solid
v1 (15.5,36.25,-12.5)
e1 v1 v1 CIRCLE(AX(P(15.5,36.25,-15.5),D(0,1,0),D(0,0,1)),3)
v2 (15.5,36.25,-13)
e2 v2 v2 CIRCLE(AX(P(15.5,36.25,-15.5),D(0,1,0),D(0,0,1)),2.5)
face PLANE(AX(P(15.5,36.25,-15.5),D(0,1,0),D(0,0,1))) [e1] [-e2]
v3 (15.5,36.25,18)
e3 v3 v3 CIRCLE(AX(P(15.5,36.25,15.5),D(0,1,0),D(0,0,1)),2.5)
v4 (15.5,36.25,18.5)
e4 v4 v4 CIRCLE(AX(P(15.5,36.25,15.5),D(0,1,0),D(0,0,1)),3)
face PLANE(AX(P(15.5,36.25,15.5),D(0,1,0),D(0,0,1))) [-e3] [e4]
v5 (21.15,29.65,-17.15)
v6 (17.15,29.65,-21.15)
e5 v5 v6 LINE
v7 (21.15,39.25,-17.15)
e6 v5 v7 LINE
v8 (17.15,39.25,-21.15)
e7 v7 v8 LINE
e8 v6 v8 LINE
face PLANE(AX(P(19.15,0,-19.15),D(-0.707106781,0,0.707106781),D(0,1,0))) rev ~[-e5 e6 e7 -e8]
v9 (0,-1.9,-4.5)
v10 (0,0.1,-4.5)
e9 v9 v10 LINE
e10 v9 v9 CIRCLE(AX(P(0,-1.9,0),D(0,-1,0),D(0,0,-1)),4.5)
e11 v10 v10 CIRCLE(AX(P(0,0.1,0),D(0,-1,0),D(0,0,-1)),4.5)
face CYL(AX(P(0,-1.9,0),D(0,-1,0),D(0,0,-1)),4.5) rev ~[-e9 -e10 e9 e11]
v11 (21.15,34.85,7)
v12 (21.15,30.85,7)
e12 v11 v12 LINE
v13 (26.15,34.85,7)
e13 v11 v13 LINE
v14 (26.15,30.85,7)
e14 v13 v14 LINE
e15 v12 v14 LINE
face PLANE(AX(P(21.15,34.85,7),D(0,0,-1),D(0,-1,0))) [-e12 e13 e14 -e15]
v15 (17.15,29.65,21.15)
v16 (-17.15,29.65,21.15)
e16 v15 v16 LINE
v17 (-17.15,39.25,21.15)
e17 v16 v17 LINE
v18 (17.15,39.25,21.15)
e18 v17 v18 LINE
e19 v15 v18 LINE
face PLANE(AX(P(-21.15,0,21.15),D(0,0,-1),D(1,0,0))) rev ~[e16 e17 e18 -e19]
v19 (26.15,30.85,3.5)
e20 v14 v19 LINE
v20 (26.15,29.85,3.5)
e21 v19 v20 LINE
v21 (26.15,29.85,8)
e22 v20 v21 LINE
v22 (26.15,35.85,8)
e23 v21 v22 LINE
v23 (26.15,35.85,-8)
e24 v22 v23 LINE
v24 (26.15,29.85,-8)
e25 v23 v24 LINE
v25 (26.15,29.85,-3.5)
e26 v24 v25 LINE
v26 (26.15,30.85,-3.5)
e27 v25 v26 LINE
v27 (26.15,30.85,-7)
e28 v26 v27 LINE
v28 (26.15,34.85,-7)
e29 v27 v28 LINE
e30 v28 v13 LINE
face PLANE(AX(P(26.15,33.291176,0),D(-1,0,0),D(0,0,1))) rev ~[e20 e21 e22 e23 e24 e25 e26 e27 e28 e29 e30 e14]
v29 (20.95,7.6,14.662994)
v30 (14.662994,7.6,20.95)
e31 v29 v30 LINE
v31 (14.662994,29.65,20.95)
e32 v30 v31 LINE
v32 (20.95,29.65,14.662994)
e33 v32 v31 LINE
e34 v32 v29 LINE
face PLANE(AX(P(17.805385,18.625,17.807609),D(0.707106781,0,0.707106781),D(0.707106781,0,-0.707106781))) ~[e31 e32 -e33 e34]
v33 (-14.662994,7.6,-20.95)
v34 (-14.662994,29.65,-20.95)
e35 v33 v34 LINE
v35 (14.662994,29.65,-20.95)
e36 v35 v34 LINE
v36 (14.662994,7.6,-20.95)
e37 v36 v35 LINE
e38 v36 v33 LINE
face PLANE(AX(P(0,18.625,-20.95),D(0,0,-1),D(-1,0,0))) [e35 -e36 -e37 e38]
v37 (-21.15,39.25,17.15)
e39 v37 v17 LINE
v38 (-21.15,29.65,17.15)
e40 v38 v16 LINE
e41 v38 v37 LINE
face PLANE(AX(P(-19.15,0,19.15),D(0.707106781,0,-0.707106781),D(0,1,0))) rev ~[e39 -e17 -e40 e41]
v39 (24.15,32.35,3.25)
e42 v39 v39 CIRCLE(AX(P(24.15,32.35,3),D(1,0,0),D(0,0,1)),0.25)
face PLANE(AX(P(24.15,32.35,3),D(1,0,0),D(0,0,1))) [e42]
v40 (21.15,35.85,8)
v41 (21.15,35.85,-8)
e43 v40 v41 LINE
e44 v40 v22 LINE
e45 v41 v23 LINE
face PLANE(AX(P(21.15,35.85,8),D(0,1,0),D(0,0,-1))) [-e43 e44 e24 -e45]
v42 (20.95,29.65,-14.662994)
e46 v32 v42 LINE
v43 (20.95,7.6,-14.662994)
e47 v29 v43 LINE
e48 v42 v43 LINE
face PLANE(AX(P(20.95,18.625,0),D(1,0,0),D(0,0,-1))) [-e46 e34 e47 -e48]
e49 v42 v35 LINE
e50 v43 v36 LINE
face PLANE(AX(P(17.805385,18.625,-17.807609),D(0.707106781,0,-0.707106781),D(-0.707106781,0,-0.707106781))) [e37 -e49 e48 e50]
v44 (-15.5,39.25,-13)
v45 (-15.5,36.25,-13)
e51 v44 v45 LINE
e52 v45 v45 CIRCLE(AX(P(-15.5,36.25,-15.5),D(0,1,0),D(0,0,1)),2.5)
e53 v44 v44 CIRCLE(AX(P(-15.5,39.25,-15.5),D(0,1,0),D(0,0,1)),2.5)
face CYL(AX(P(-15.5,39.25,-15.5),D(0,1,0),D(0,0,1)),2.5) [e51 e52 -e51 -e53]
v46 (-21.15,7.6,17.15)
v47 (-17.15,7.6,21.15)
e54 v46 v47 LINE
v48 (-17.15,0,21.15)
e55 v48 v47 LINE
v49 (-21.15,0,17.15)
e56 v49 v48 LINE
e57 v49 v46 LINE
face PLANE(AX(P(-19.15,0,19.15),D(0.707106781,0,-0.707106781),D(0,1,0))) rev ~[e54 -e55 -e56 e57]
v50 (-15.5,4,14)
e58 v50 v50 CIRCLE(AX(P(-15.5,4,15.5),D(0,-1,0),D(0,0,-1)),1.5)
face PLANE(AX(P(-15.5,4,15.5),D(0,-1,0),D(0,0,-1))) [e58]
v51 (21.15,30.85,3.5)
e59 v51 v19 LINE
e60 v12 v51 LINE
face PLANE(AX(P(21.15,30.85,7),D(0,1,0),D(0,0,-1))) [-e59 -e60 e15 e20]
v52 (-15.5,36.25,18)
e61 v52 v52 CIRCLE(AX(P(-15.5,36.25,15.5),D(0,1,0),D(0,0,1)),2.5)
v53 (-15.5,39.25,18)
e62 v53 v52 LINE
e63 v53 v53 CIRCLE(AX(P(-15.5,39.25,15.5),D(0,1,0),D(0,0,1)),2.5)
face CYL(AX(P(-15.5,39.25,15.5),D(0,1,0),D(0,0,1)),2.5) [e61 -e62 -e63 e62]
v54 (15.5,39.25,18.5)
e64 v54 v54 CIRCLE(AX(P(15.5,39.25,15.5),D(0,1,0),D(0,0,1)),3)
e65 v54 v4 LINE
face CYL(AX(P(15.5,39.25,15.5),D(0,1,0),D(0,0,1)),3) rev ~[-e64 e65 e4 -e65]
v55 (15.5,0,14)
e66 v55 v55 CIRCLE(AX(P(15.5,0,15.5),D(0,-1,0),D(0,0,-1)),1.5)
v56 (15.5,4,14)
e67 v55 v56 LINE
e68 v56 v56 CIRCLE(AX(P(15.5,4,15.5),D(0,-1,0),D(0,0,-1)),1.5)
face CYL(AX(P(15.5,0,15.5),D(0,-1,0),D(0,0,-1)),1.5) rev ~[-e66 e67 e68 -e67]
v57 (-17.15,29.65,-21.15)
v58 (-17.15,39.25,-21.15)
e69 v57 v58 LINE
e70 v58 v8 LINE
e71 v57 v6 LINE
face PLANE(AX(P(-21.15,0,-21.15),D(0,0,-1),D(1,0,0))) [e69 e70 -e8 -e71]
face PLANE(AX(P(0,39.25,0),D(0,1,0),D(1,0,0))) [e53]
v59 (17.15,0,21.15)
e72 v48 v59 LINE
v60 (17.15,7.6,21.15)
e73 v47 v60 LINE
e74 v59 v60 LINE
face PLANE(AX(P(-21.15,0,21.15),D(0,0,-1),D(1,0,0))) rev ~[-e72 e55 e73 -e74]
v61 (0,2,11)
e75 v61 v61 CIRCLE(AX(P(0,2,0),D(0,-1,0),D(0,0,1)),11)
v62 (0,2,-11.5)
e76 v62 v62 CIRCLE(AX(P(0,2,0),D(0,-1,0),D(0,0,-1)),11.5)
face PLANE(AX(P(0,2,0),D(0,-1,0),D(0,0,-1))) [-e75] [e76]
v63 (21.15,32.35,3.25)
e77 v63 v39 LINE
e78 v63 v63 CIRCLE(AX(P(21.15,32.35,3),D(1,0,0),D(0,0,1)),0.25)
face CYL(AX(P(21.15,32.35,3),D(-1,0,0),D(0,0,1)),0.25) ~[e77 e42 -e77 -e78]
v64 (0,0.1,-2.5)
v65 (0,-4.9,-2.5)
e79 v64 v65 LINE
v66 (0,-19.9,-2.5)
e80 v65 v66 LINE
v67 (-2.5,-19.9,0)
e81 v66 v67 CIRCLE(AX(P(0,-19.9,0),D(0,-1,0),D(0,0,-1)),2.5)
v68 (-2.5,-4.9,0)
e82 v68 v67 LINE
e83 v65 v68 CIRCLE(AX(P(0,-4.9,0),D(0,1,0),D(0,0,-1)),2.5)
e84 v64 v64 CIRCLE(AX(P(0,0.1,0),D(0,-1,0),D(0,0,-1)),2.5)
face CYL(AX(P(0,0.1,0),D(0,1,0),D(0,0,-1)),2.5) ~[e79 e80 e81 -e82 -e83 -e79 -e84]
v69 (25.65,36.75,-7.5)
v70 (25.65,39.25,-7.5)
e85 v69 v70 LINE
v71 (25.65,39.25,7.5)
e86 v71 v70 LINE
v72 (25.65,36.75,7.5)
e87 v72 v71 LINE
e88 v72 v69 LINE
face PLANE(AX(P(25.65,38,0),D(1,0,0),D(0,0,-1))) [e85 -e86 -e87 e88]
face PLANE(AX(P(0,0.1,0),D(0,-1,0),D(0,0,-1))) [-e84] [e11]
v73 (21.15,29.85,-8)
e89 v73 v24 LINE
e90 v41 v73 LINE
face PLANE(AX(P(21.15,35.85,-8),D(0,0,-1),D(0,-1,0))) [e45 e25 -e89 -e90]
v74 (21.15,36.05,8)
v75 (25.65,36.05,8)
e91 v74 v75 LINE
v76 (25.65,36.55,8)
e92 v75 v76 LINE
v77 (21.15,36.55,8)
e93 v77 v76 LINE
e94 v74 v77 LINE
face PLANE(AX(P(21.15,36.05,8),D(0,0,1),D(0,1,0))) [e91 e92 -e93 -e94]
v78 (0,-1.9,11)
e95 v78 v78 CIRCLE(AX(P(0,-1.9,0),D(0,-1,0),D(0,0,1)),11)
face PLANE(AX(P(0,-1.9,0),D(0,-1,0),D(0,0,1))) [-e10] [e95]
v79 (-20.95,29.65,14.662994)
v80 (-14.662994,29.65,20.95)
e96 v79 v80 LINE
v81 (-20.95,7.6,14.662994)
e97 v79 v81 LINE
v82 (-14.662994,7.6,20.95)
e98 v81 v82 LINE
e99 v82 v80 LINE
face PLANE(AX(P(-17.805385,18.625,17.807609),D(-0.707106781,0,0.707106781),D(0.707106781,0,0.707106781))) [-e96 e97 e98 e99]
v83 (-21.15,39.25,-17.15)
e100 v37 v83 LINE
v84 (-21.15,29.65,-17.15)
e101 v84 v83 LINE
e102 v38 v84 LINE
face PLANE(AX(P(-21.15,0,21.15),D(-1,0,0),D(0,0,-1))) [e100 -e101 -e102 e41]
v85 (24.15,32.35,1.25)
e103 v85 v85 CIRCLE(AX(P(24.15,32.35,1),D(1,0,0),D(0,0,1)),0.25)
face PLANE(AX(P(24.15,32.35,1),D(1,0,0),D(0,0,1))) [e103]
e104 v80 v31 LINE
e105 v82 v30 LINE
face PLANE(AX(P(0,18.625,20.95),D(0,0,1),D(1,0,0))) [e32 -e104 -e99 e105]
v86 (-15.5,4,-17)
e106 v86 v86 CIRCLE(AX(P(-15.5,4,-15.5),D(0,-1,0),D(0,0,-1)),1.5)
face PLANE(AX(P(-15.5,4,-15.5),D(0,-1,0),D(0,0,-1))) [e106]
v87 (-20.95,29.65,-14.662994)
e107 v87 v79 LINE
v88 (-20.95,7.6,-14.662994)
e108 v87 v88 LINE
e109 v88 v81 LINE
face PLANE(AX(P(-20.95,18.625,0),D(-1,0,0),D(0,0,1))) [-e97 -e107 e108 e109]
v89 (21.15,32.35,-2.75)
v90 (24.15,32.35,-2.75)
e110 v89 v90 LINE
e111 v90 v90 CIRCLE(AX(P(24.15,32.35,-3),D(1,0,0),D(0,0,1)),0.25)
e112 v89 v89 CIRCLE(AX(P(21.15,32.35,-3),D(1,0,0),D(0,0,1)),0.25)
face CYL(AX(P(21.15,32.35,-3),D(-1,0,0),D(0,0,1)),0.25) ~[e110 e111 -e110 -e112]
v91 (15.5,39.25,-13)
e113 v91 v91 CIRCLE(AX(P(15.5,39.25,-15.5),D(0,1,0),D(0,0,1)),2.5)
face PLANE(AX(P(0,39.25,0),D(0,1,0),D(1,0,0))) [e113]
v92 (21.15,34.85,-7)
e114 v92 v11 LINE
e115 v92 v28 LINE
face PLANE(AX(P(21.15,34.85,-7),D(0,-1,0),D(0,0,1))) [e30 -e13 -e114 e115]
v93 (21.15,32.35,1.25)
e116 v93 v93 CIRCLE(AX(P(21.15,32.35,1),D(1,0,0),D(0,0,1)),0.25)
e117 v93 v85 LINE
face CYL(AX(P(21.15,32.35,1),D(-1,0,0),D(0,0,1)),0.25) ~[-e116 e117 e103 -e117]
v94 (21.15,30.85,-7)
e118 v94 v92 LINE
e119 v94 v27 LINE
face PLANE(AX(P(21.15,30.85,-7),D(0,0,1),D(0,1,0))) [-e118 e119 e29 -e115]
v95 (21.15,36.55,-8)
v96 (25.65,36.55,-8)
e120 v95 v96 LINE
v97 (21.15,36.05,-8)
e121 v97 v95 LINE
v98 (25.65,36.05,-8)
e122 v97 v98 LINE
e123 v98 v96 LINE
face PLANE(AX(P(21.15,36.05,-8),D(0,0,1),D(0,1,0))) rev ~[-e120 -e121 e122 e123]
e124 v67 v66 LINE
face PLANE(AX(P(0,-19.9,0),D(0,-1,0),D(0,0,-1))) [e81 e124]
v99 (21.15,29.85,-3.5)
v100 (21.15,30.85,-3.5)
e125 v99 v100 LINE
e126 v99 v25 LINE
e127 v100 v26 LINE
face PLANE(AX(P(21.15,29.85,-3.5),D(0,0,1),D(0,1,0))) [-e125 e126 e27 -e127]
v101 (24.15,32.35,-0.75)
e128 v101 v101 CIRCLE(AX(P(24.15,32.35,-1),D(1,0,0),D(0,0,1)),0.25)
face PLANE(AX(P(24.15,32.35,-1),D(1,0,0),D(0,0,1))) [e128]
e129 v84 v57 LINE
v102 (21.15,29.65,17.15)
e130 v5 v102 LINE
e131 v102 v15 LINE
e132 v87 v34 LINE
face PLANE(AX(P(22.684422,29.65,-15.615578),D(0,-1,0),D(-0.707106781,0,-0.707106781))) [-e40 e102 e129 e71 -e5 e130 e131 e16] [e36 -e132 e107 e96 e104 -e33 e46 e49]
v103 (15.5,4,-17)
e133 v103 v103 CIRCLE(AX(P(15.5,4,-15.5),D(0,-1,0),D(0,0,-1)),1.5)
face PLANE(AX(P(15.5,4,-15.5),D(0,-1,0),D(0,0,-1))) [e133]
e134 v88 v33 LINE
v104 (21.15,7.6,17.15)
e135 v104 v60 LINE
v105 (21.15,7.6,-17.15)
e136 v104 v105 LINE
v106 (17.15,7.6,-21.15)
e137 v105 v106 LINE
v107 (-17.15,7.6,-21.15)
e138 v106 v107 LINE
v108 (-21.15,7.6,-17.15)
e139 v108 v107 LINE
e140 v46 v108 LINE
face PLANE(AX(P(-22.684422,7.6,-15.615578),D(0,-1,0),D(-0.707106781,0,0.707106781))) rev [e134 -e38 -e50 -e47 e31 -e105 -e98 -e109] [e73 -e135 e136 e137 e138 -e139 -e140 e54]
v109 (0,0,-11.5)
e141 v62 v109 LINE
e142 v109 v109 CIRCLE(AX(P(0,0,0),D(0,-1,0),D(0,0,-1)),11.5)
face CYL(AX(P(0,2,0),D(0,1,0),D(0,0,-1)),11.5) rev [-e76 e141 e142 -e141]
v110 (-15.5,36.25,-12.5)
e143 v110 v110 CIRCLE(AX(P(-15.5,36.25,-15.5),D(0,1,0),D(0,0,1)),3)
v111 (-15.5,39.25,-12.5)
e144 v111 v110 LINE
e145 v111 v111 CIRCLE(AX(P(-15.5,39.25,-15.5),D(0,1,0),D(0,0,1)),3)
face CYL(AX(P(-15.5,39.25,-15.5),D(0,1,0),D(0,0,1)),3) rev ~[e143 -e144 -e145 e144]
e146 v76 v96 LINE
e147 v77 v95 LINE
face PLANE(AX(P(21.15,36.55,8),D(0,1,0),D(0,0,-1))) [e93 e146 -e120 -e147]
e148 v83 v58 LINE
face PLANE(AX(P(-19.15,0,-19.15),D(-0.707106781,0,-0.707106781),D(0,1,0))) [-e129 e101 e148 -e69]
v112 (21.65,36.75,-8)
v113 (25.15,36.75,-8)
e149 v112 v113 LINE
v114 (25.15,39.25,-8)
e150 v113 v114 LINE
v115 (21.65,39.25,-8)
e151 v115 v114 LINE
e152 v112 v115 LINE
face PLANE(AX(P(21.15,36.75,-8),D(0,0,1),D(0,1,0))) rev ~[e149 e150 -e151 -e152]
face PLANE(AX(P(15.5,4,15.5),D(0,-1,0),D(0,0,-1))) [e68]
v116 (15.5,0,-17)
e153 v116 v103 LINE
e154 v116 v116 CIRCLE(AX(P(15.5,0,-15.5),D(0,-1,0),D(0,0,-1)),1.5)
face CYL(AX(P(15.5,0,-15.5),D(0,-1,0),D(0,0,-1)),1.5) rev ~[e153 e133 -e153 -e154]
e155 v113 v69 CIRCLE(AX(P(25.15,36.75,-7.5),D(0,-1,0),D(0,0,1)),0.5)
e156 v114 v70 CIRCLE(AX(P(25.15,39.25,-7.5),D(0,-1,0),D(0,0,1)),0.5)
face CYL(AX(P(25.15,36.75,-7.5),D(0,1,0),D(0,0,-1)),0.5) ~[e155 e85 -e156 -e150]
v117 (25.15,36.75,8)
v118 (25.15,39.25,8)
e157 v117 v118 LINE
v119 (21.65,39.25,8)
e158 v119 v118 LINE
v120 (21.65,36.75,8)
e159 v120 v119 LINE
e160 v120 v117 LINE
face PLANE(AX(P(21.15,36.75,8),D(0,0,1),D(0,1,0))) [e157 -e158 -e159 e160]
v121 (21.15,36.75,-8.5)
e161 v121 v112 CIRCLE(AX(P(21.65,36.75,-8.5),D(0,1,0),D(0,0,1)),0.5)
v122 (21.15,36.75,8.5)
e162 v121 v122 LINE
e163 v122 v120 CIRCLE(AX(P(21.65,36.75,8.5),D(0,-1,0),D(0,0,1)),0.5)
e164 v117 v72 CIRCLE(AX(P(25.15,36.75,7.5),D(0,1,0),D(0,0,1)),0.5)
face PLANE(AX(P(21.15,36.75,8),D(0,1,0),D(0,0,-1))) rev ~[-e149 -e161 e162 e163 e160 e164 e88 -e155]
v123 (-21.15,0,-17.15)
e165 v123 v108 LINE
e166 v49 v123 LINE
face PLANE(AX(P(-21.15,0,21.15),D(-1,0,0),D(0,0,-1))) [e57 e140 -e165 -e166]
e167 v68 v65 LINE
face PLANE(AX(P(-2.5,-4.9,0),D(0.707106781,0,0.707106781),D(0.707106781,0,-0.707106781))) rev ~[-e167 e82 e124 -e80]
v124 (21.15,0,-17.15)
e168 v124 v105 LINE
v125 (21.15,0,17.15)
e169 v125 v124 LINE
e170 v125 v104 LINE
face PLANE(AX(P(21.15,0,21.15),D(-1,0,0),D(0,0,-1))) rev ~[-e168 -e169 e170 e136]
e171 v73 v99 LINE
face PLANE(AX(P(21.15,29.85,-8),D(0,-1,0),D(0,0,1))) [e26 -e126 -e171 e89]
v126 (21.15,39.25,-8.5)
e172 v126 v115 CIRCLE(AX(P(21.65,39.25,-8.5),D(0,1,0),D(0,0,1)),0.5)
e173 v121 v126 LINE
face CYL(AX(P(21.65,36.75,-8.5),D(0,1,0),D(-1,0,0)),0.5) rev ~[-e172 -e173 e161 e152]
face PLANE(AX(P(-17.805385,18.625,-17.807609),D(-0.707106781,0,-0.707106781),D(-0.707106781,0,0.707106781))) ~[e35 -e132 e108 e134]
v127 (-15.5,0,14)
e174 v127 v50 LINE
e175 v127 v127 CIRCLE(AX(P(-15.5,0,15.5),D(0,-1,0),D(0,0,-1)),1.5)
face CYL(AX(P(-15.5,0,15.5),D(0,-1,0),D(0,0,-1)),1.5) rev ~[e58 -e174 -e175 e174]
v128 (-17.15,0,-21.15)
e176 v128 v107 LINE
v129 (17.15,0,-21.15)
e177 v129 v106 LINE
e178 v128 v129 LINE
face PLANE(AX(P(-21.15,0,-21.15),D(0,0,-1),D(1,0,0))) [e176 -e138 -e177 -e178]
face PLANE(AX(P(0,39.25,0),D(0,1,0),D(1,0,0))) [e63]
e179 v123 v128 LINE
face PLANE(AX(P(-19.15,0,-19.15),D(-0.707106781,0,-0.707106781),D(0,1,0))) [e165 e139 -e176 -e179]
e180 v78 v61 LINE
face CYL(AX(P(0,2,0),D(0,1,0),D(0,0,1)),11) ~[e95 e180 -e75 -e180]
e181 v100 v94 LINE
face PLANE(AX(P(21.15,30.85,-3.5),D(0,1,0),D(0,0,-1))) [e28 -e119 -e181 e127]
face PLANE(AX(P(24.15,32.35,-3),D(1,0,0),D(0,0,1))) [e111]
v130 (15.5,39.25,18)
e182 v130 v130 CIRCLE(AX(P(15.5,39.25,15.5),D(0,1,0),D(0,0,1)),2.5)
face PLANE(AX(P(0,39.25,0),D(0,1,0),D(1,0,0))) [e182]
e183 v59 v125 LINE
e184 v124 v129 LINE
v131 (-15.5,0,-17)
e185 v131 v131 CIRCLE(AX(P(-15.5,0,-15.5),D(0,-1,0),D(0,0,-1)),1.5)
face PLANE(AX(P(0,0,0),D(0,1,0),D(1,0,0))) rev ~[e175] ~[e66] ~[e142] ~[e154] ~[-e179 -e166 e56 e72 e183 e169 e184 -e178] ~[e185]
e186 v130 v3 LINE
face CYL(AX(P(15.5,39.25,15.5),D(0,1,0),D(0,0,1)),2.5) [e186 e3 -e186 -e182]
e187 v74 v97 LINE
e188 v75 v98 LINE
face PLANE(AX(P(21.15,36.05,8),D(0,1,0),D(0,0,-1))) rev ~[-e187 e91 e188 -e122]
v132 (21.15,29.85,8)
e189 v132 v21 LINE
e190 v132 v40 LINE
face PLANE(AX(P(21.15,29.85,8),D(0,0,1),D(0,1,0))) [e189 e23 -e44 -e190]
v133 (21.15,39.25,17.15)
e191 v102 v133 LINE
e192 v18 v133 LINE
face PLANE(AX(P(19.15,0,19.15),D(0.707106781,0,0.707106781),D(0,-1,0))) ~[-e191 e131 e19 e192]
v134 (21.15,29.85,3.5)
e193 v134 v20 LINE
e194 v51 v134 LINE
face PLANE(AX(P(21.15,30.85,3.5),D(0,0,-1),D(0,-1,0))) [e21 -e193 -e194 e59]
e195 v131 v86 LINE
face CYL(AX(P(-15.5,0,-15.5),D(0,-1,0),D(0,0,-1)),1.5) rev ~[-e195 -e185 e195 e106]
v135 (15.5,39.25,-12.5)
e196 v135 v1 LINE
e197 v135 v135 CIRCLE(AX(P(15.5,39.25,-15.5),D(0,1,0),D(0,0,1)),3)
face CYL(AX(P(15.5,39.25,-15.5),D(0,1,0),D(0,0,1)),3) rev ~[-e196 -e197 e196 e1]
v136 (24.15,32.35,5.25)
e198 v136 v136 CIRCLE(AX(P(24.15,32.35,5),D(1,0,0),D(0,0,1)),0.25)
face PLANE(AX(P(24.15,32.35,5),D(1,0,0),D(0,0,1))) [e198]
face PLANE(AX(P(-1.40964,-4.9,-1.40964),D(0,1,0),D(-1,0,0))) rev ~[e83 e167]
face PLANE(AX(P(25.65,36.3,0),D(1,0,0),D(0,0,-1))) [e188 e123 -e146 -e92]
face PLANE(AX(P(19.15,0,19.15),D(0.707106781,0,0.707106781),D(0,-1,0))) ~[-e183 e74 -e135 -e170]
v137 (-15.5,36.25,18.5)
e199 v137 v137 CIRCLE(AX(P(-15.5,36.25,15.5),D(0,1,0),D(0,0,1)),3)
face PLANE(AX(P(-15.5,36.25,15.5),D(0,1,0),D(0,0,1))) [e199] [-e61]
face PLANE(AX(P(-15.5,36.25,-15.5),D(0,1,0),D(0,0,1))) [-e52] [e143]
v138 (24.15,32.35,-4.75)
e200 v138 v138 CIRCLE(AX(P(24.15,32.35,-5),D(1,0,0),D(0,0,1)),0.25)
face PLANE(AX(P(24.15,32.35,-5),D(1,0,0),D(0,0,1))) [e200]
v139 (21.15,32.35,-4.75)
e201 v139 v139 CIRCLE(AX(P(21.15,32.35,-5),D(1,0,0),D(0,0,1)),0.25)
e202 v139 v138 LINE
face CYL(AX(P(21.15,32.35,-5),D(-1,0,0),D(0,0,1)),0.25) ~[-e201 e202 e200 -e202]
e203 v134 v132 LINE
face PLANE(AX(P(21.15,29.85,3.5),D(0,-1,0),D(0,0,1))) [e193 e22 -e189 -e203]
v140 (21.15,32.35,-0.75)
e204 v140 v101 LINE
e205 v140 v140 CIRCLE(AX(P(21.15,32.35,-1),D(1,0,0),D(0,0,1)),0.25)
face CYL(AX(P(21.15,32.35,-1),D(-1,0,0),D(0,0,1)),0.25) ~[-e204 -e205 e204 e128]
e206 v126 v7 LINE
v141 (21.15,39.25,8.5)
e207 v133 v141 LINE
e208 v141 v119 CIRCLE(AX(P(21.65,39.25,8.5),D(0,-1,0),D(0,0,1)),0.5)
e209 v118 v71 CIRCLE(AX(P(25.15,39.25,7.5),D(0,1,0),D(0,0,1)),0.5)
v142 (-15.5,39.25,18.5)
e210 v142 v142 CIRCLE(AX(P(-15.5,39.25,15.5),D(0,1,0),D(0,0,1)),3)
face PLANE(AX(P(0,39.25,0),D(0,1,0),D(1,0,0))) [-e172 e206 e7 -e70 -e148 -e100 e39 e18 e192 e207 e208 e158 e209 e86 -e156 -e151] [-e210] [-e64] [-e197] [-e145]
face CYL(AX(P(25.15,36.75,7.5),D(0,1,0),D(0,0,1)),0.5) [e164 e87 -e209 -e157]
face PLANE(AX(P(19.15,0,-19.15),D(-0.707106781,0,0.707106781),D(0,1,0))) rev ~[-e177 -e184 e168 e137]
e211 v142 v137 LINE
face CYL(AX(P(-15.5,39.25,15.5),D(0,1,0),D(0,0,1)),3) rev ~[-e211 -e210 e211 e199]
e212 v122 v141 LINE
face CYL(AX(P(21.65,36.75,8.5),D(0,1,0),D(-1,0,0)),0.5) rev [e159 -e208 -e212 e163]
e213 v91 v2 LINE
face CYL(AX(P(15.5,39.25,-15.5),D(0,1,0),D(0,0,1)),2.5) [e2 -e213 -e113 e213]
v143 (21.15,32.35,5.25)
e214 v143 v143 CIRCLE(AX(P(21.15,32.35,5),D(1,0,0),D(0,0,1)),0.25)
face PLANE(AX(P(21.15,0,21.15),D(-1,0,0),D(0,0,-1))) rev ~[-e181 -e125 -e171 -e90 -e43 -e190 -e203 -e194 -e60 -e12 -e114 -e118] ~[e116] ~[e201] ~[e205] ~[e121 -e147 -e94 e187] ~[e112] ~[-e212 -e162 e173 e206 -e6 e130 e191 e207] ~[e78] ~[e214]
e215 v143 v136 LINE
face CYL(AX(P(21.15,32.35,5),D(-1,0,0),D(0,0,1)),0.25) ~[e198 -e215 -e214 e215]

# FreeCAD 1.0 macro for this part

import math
import FreeCAD as App
import Part
import Sketcher
from FreeCAD import Vector
Q = App.Units.Quantity


def edges_at(feature, points):
    """Names of the edges that pass closest to the given points."""
    edges = feature.Shape.Edges
    near = lambda p: min(range(len(edges)), key=lambda i: edges[i].distToShape(Part.Vertex(*p))[0])
    return sorted({f"Edge{near(p) + 1}" for p in points})


def add_polygon(sketch, points):
    """Adds a closed chain of lines whose ends are joined by coincident constraints."""
    first, n = sketch.GeometryCount, len(points)
    for a, b in zip(points, points[1:] + points[:1]):
        sketch.addGeometry(Part.LineSegment(App.Vector(*a, 0), App.Vector(*b, 0)), False)
    for i in range(n):
        sketch.addConstraint(Sketcher.Constraint("Coincident", first + i, 2, first + (i + 1) % n, 1))

doc = App.newDocument("Part")
body = doc.addObject("PartDesign::Body", "Body")

sketch1 = doc.addObject("Sketcher::SketchObject", "Sketch")
body.addObject(sketch1)
sketch1.AttachmentSupport = (doc.XZ_Plane, [""])
sketch1.MapMode = "FlatFace"
add_polygon(sketch1, [(-21, -21), (-21, 21), (21, 21), (21, -21)])
sketch1.addConstraint(Sketcher.Constraint("Vertical", 0))
sketch1.addConstraint(Sketcher.Constraint("Horizontal", 1))
sketch1.addConstraint(Sketcher.Constraint("Vertical", 2))
sketch1.addConstraint(Sketcher.Constraint("Horizontal", 3))
sketch1.addConstraint(Sketcher.Constraint("Symmetric", 0, 2, 2, 2, -1, 1))
sketch1.addConstraint(Sketcher.Constraint("Equal", 3, 0))
sketch1.addConstraint(Sketcher.Constraint("DistanceX", 1, 1, 1, 2, Q("42.3 mm")))
pad1 = doc.addObject("PartDesign::Pad", "Pad")
body.addObject(pad1)
pad1.Profile = sketch1
pad1.Length = 39.25
pad1.Reversed = True
doc.recompute()

chamfer = doc.addObject("PartDesign::Chamfer", "Chamfer")
body.addObject(chamfer)
chamfer.Base = (pad1, edges_at(pad1, [
    (21.15, 19.625, 21.15),
    (-21.15, 19.625, 21.15),
    (-21.15, 19.625, -21.15),
    (21.15, 19.625, -21.15),
]))
chamfer.Size = 4

sketch2 = doc.addObject("Sketcher::SketchObject", "Sketch001")
body.addObject(sketch2)
sketch2.Placement = App.Placement(Vector(19.15, 0, -19.15), App.Rotation(Vector(-0.707106781, 0, -0.707106781), Vector(0, 0.999999999, 0), Vector(0.707106781, 0, -0.707106781), "ZXY"))
add_polygon(sketch2, [(-5, 30), (-5, 8), (5, 8), (5, 30)])
sketch2.addConstraint(Sketcher.Constraint("Vertical", 0))
sketch2.addConstraint(Sketcher.Constraint("Horizontal", 1))
sketch2.addConstraint(Sketcher.Constraint("Vertical", 2))
sketch2.addConstraint(Sketcher.Constraint("Horizontal", 3))
sketch2.addConstraint(Sketcher.Constraint("DistanceX", 1, 1, 1, 2, Q("10 mm")))
sketch2.addConstraint(Sketcher.Constraint("DistanceY", 0, 2, 0, 1, Q("22.05 mm")))
sketch2.addConstraint(Sketcher.Constraint("DistanceY", -1, 1, 0, 2, Q("7.6 mm")))
sketch2.addConstraint(Sketcher.Constraint("DistanceX", 0, 2, -1, 1, Q("4.998427 mm")))
pocket1 = doc.addObject("PartDesign::Pocket", "Pocket")
body.addObject(pocket1)
pocket1.Profile = sketch2
pocket1.Length = 1.9
doc.recompute()

mirrored = doc.addObject("PartDesign::Mirrored", "Mirrored")
body.addObject(mirrored)
mirrored.Originals = [pocket1]
mirrored.MirrorPlane = (doc.XY_Plane, [""])
body.Tip = mirrored
doc.recompute()

mirrored2 = doc.addObject("PartDesign::Mirrored", "Mirrored001")
body.addObject(mirrored2)
mirrored2.Originals = [pocket1]
mirrored2.MirrorPlane = (doc.YZ_Plane, [""])
body.Tip = mirrored2

sketch3 = doc.addObject("Sketcher::SketchObject", "Sketch002")
body.addObject(sketch3)
sketch3.Placement = App.Placement(Vector(-19.15, 0, 19.15), App.Rotation(Vector(0.707106781, 0, 0.707106781), Vector(0, 0.999999999, 0), Vector(-0.707106781, 0, 0.707106781), "ZXY"))
add_polygon(sketch3, [(-5, 30), (-5, 8), (5, 8), (5, 30)])
sketch3.addConstraint(Sketcher.Constraint("Vertical", 0))
sketch3.addConstraint(Sketcher.Constraint("Horizontal", 1))
sketch3.addConstraint(Sketcher.Constraint("Vertical", 2))
sketch3.addConstraint(Sketcher.Constraint("Horizontal", 3))
sketch3.addConstraint(Sketcher.Constraint("DistanceX", 1, 1, 1, 2, Q("10 mm")))
sketch3.addConstraint(Sketcher.Constraint("DistanceY", 0, 2, 0, 1, Q("22.05 mm")))
sketch3.addConstraint(Sketcher.Constraint("DistanceY", -1, 1, 0, 2, Q("7.6 mm")))
sketch3.addConstraint(Sketcher.Constraint("DistanceX", 0, 2, -1, 1, Q("4.998427 mm")))
pocket2 = doc.addObject("PartDesign::Pocket", "Pocket001")
body.addObject(pocket2)
pocket2.Profile = sketch3
pocket2.Length = 1.9

sketch4 = doc.addObject("Sketcher::SketchObject", "Sketch003")
body.addObject(sketch4)
sketch4.AttachmentSupport = (doc.XZ_Plane, [""])
sketch4.MapMode = "FlatFace"
sketch4.addGeometry(Part.Circle(Vector(0, 0, 0), Vector(0, 0, 1), 11), False)
sketch4.addConstraint(Sketcher.Constraint("Coincident", 0, 3, -1, 1))
sketch4.addConstraint(Sketcher.Constraint("Diameter", 0, Q("22 mm")))
pad2 = doc.addObject("PartDesign::Pad", "Pad001")
body.addObject(pad2)
pad2.Profile = sketch4
pad2.Length = 1.9

sketch5 = doc.addObject("Sketcher::SketchObject", "Sketch004")
body.addObject(sketch5)
sketch5.AttachmentSupport = (doc.XZ_Plane, [""])
sketch5.MapMode = "FlatFace"
sketch5.AttachmentOffset = App.Placement(Vector(0, 0, -2), App.Rotation())
sketch5.addGeometry(Part.Circle(Vector(0, 0, 0), Vector(0, 0, 1), 12), False)
sketch5.addGeometry(Part.Circle(Vector(0, 0, 0), Vector(0, 0, 1), 11), False)
sketch5.addConstraint(Sketcher.Constraint("Coincident", 0, 3, -1, 1))
sketch5.addConstraint(Sketcher.Constraint("Coincident", 1, 3, -1, 1))
sketch5.addConstraint(Sketcher.Constraint("Diameter", 0, Q("23 mm")))
sketch5.addConstraint(Sketcher.Constraint("Diameter", 1, Q("22 mm")))
pocket3 = doc.addObject("PartDesign::Pocket", "Pocket002")
body.addObject(pocket3)
pocket3.Profile = sketch5
pocket3.Length = 2
pocket3.Reversed = True

sketch6 = doc.addObject("Sketcher::SketchObject", "Sketch005")
body.addObject(sketch6)
sketch6.AttachmentSupport = (doc.XZ_Plane, [""])
sketch6.MapMode = "FlatFace"
sketch6.AttachmentOffset = App.Placement(Vector(0, 0, 1.9), App.Rotation())
sketch6.addGeometry(Part.Circle(Vector(0, 0, 0), Vector(0, 0, 1), 4.5), False)
sketch6.addConstraint(Sketcher.Constraint("Coincident", 0, 3, -1, 1))
sketch6.addConstraint(Sketcher.Constraint("Diameter", 0, Q("9 mm")))
pocket4 = doc.addObject("PartDesign::Pocket", "Pocket003")
body.addObject(pocket4)
pocket4.Profile = sketch6
pocket4.Length = 2

sketch7 = doc.addObject("Sketcher::SketchObject", "Sketch006")
body.addObject(sketch7)
sketch7.AttachmentSupport = (doc.XZ_Plane, [""])
sketch7.MapMode = "FlatFace"
sketch7.AttachmentOffset = App.Placement(Vector(0, 0, -0.1), App.Rotation())
sketch7.addGeometry(Part.Circle(Vector(0, 0, 0), Vector(0, 0, 1), 2.5), False)
sketch7.addConstraint(Sketcher.Constraint("Coincident", 0, 3, -1, 1))
sketch7.addConstraint(Sketcher.Constraint("Diameter", 0, Q("5 mm")))
pad3 = doc.addObject("PartDesign::Pad", "Pad002")
body.addObject(pad3)
pad3.Profile = sketch7
pad3.Length = 20

sketch8 = doc.addObject("Sketcher::SketchObject", "Sketch007")
body.addObject(sketch8)
sketch8.AttachmentSupport = (doc.XZ_Plane, [""])
sketch8.MapMode = "FlatFace"
sketch8.AttachmentOffset = App.Placement(Vector(0, 0, 4.9), App.Rotation())
sketch8.addGeometry(Part.LineSegment(Vector(0, -2.5, 0), Vector(-2.5, 0, 0)), False)
sketch8.addGeometry(Part.ArcOfCircle(Part.Circle(Vector(0, 0, 0), Vector(0, 0, 1), 2.5), math.radians(180), math.radians(270)), False)
sketch8.addConstraint(Sketcher.Constraint("Coincident", 0, 1, 1, 2))
sketch8.addConstraint(Sketcher.Constraint("Coincident", 1, 1, 0, 2))
sketch8.addConstraint(Sketcher.Constraint("Coincident", 1, 3, -1, 1))
sketch8.addConstraint(Sketcher.Constraint("PointOnObject", 0, 1, -2))
sketch8.addConstraint(Sketcher.Constraint("PointOnObject", 1, 1, -1))
sketch8.addConstraint(Sketcher.Constraint("Radius", 1, Q("2.5 mm")))
pocket5 = doc.addObject("PartDesign::Pocket", "Pocket004")
body.addObject(pocket5)
pocket5.Profile = sketch8
pocket5.Length = 15
pocket5.Reversed = True

sketch9 = doc.addObject("Sketcher::SketchObject", "Sketch008")
body.addObject(sketch9)
sketch9.AttachmentSupport = (doc.XZ_Plane, [""])
sketch9.MapMode = "FlatFace"
sketch9.addGeometry(Part.Circle(Vector(-15.5, 15.5, 0), Vector(0, 0, 1), 1.5), False)
sketch9.addGeometry(Part.Circle(Vector(15.5, 15.5, 0), Vector(0, 0, 1), 1.5), False)
sketch9.addGeometry(Part.Circle(Vector(15.5, -15.5, 0), Vector(0, 0, 1), 1.5), False)
sketch9.addGeometry(Part.Circle(Vector(-15.5, -15.5, 0), Vector(0, 0, 1), 1.5), False)
sketch9.addConstraint(Sketcher.Constraint("Equal", 0, 1))
sketch9.addConstraint(Sketcher.Constraint("Equal", 1, 2))
sketch9.addConstraint(Sketcher.Constraint("Equal", 2, 3))
sketch9.addConstraint(Sketcher.Constraint("Symmetric", 0, 3, 2, 3, -1, 1))
sketch9.addConstraint(Sketcher.Constraint("Symmetric", 1, 3, 3, 3, -1, 1))
sketch9.addConstraint(Sketcher.Constraint("Symmetric", 0, 3, 1, 3, -2))
sketch9.addConstraint(Sketcher.Constraint("Diameter", 0, Q("3 mm")))
sketch9.addConstraint(Sketcher.Constraint("DistanceX", 0, 3, 1, 3, Q("31 mm")))
sketch9.addConstraint(Sketcher.Constraint("DistanceY", 2, 3, 1, 3, Q("31 mm")))
pocket6 = doc.addObject("PartDesign::Pocket", "Pocket005")
body.addObject(pocket6)
pocket6.Profile = sketch9
pocket6.Length = 4

sketch10 = doc.addObject("Sketcher::SketchObject", "Sketch009")
body.addObject(sketch10)
sketch10.AttachmentSupport = (doc.YZ_Plane, [""])
sketch10.MapMode = "FlatFace"
sketch10.AttachmentOffset = App.Placement(Vector(0, 0, -21.15), App.Rotation())
add_polygon(sketch10, [(30, -15), (8, -15), (8, 15), (30, 15)])
sketch10.addConstraint(Sketcher.Constraint("Horizontal", 0))
sketch10.addConstraint(Sketcher.Constraint("Vertical", 1))
sketch10.addConstraint(Sketcher.Constraint("Horizontal", 2))
sketch10.addConstraint(Sketcher.Constraint("Vertical", 3))
sketch10.addConstraint(Sketcher.Constraint("DistanceX", 0, 2, 0, 1, Q("22.05 mm")))
sketch10.addConstraint(Sketcher.Constraint("DistanceX", -1, 1, 0, 2, Q("7.6 mm")))
sketch10.addConstraint(Sketcher.Constraint("DistanceY", 1, 1, 1, 2, Q("30.925988 mm")))
sketch10.addConstraint(Sketcher.Constraint("DistanceY", 0, 2, -1, 1, Q("15.462994 mm")))
pocket7 = doc.addObject("PartDesign::Pocket", "Pocket006")
body.addObject(pocket7)
pocket7.Profile = sketch10
pocket7.Length = 0.2
pocket7.Reversed = True
doc.recompute()

polarpattern = doc.addObject("PartDesign::PolarPattern", "PolarPattern")
body.addObject(polarpattern)
polarpattern.Originals = [pocket7]
polarpattern.Axis = (doc.Y_Axis, [""])
polarpattern.Angle = 360
polarpattern.Occurrences = 4
body.Tip = polarpattern

sketch11 = doc.addObject("Sketcher::SketchObject", "Sketch010")
body.addObject(sketch11)
sketch11.AttachmentSupport = (doc.YZ_Plane, [""])
sketch11.MapMode = "FlatFace"
sketch11.AttachmentOffset = App.Placement(Vector(0, 0, 21.15), App.Rotation())
add_polygon(sketch11, [(39.2, 8), (36.8, 8), (36.8, -8), (39.2, -8)])
sketch11.addConstraint(Sketcher.Constraint("Horizontal", 0))
sketch11.addConstraint(Sketcher.Constraint("Vertical", 1))
sketch11.addConstraint(Sketcher.Constraint("Horizontal", 2))
sketch11.addConstraint(Sketcher.Constraint("Vertical", 3))
sketch11.addConstraint(Sketcher.Constraint("DistanceY", 1, 2, 1, 1, Q("16 mm")))
sketch11.addConstraint(Sketcher.Constraint("DistanceX", 0, 2, 0, 1, Q("2.5 mm")))
sketch11.addConstraint(Sketcher.Constraint("DistanceY", -1, 1, 0, 2, Q("8 mm")))
sketch11.addConstraint(Sketcher.Constraint("DistanceX", -1, 1, 0, 2, Q("36.75 mm")))
pad4 = doc.addObject("PartDesign::Pad", "Pad003")
body.addObject(pad4)
pad4.Profile = sketch11
pad4.Length = 4.5
doc.recompute()

fillet = doc.addObject("PartDesign::Fillet", "Fillet")
body.addObject(fillet)
fillet.Base = (pad4, edges_at(pad4, [
    (21.15, 38, 8),
    (21.15, 38, -8),
    (25.65, 38, 8),
    (25.65, 38, -8),
]))
fillet.Radius = 0.5

sketch12 = doc.addObject("Sketcher::SketchObject", "Sketch011")
body.addObject(sketch12)
sketch12.AttachmentSupport = (doc.YZ_Plane, [""])
sketch12.MapMode = "FlatFace"
sketch12.AttachmentOffset = App.Placement(Vector(0, 0, 21.15), App.Rotation())
add_polygon(sketch12, [(36.5, 8), (36, 8), (36, -8), (36.5, -8)])
sketch12.addConstraint(Sketcher.Constraint("Horizontal", 0))
sketch12.addConstraint(Sketcher.Constraint("Vertical", 1))
sketch12.addConstraint(Sketcher.Constraint("Horizontal", 2))
sketch12.addConstraint(Sketcher.Constraint("Vertical", 3))
sketch12.addConstraint(Sketcher.Constraint("DistanceY", 1, 2, 1, 1, Q("16 mm")))
sketch12.addConstraint(Sketcher.Constraint("DistanceX", 0, 2, 0, 1, Q("0.5 mm")))
sketch12.addConstraint(Sketcher.Constraint("DistanceY", -1, 1, 0, 2, Q("8 mm")))
sketch12.addConstraint(Sketcher.Constraint("DistanceX", -1, 1, 0, 2, Q("36.05 mm")))
pad5 = doc.addObject("PartDesign::Pad", "Pad004")
body.addObject(pad5)
pad5.Profile = sketch12
pad5.Length = 4.5

sketch13 = doc.addObject("Sketcher::SketchObject", "Sketch012")
body.addObject(sketch13)
sketch13.AttachmentSupport = (doc.YZ_Plane, [""])
sketch13.MapMode = "FlatFace"
sketch13.AttachmentOffset = App.Placement(Vector(0, 0, 21.15), App.Rotation())
add_polygon(sketch13, [(29.9, 3.5), (30.9, 3.5), (30.9, 7), (34.9, 7), (34.9, -7), (30.9, -7), (30.9, -3.5), (29.9, -3.5), (29.9, -8), (35.9, -8), (35.9, 8), (29.9, 8)])
sketch13.addConstraint(Sketcher.Constraint("Horizontal", 0))
sketch13.addConstraint(Sketcher.Constraint("Vertical", 1))
sketch13.addConstraint(Sketcher.Constraint("Horizontal", 2))
sketch13.addConstraint(Sketcher.Constraint("Vertical", 3))
sketch13.addConstraint(Sketcher.Constraint("Horizontal", 4))
sketch13.addConstraint(Sketcher.Constraint("Vertical", 5))
sketch13.addConstraint(Sketcher.Constraint("Horizontal", 6))
sketch13.addConstraint(Sketcher.Constraint("Vertical", 7))
sketch13.addConstraint(Sketcher.Constraint("Horizontal", 8))
sketch13.addConstraint(Sketcher.Constraint("Vertical", 9))
sketch13.addConstraint(Sketcher.Constraint("Horizontal", 10))
sketch13.addConstraint(Sketcher.Constraint("Vertical", 11))
sketch13.addConstraint(Sketcher.Constraint("Symmetric", 1, 2, 4, 2, -1))
sketch13.addConstraint(Sketcher.Constraint("Symmetric", 7, 2, 10, 2, -1))
sketch13.addConstraint(Sketcher.Constraint("Equal", 1, 5))
sketch13.addConstraint(Sketcher.Constraint("DistanceX", 0, 1, 0, 2, Q("1 mm")))
sketch13.addConstraint(Sketcher.Constraint("DistanceX", 2, 1, 2, 2, Q("4 mm")))
sketch13.addConstraint(Sketcher.Constraint("DistanceX", 8, 1, 8, 2, Q("6 mm")))
sketch13.addConstraint(Sketcher.Constraint("DistanceY", 3, 2, 3, 1, Q("14 mm")))
sketch13.addConstraint(Sketcher.Constraint("DistanceY", 9, 1, 9, 2, Q("16 mm")))
sketch13.addConstraint(Sketcher.Constraint("DistanceY", 1, 1, 1, 2, Q("3.5 mm")))
sketch13.addConstraint(Sketcher.Constraint("DistanceX", -1, 1, 0, 2, Q("30.85 mm")))
pad6 = doc.addObject("PartDesign::Pad", "Pad005")
body.addObject(pad6)
pad6.Profile = sketch13
pad6.Length = 5

sketch14 = doc.addObject("Sketcher::SketchObject", "Sketch013")
body.addObject(sketch14)
sketch14.AttachmentSupport = (doc.YZ_Plane, [""])
sketch14.MapMode = "FlatFace"
sketch14.AttachmentOffset = App.Placement(Vector(0, 0, 21.15), App.Rotation())
sketch14.addGeometry(Part.Circle(Vector(32.35, 5, 0), Vector(0, 0, 1), 0.25), False)
sketch14.addGeometry(Part.Circle(Vector(32.35, 3, 0), Vector(0, 0, 1), 0.25), False)
sketch14.addGeometry(Part.Circle(Vector(32.35, 1, 0), Vector(0, 0, 1), 0.25), False)
sketch14.addGeometry(Part.Circle(Vector(32.35, -1, 0), Vector(0, 0, 1), 0.25), False)
sketch14.addGeometry(Part.Circle(Vector(32.35, -3, 0), Vector(0, 0, 1), 0.25), False)
sketch14.addGeometry(Part.Circle(Vector(32.35, -5, 0), Vector(0, 0, 1), 0.25), False)
sketch14.addConstraint(Sketcher.Constraint("Equal", 0, 1))
sketch14.addConstraint(Sketcher.Constraint("Equal", 1, 2))
sketch14.addConstraint(Sketcher.Constraint("Equal", 2, 3))
sketch14.addConstraint(Sketcher.Constraint("Equal", 3, 4))
sketch14.addConstraint(Sketcher.Constraint("Equal", 4, 5))
sketch14.addConstraint(Sketcher.Constraint("Symmetric", 2, 3, 3, 3, -1))
sketch14.addConstraint(Sketcher.Constraint("Symmetric", 1, 3, 4, 3, -1))
sketch14.addConstraint(Sketcher.Constraint("Symmetric", 0, 3, 5, 3, -1))
sketch14.addConstraint(Sketcher.Constraint("Vertical", 0, 3, 1, 3))
sketch14.addConstraint(Sketcher.Constraint("Vertical", 1, 3, 2, 3))
sketch14.addConstraint(Sketcher.Constraint("Diameter", 0, Q("0.5 mm")))
sketch14.addConstraint(Sketcher.Constraint("DistanceY", -1, 1, 0, 3, Q("5 mm")))
sketch14.addConstraint(Sketcher.Constraint("DistanceY", -1, 1, 1, 3, Q("3 mm")))
sketch14.addConstraint(Sketcher.Constraint("DistanceY", -1, 1, 2, 3, Q("1 mm")))
sketch14.addConstraint(Sketcher.Constraint("DistanceX", -1, 1, 0, 3, Q("32.35 mm")))
pad7 = doc.addObject("PartDesign::Pad", "Pad006")
body.addObject(pad7)
pad7.Profile = sketch14
pad7.Length = 3

sketch15 = doc.addObject("Sketcher::SketchObject", "Sketch014")
body.addObject(sketch15)
sketch15.AttachmentSupport = (doc.XZ_Plane, [""])
sketch15.MapMode = "FlatFace"
sketch15.AttachmentOffset = App.Placement(Vector(0, 0, -39.25), App.Rotation())
sketch15.addGeometry(Part.Circle(Vector(-15.5, -15.5, 0), Vector(0, 0, 1), 3), False)
sketch15.addGeometry(Part.Circle(Vector(-15.5, -15.5, 0), Vector(0, 0, 1), 2.5), False)
sketch15.addGeometry(Part.Circle(Vector(15.5, -15.5, 0), Vector(0, 0, 1), 3), False)
sketch15.addGeometry(Part.Circle(Vector(15.5, -15.5, 0), Vector(0, 0, 1), 2.5), False)
sketch15.addGeometry(Part.Circle(Vector(15.5, 15.5, 0), Vector(0, 0, 1), 3), False)
sketch15.addGeometry(Part.Circle(Vector(15.5, 15.5, 0), Vector(0, 0, 1), 2.5), False)
sketch15.addGeometry(Part.Circle(Vector(-15.5, 15.5, 0), Vector(0, 0, 1), 3), False)
sketch15.addGeometry(Part.Circle(Vector(-15.5, 15.5, 0), Vector(0, 0, 1), 2.5), False)
sketch15.addConstraint(Sketcher.Constraint("Coincident", 1, 3, 0, 3))
sketch15.addConstraint(Sketcher.Constraint("Coincident", 3, 3, 2, 3))
sketch15.addConstraint(Sketcher.Constraint("Coincident", 5, 3, 4, 3))
sketch15.addConstraint(Sketcher.Constraint("Coincident", 7, 3, 6, 3))
sketch15.addConstraint(Sketcher.Constraint("Equal", 0, 2))
sketch15.addConstraint(Sketcher.Constraint("Equal", 1, 3))
sketch15.addConstraint(Sketcher.Constraint("Equal", 2, 4))
sketch15.addConstraint(Sketcher.Constraint("Equal", 3, 5))
sketch15.addConstraint(Sketcher.Constraint("Equal", 4, 6))
sketch15.addConstraint(Sketcher.Constraint("Equal", 5, 7))
sketch15.addConstraint(Sketcher.Constraint("Symmetric", 0, 3, 4, 3, -1, 1))
sketch15.addConstraint(Sketcher.Constraint("Symmetric", 2, 3, 6, 3, -1, 1))
sketch15.addConstraint(Sketcher.Constraint("Symmetric", 0, 3, 2, 3, -2))
sketch15.addConstraint(Sketcher.Constraint("Diameter", 0, Q("6 mm")))
sketch15.addConstraint(Sketcher.Constraint("Diameter", 1, Q("5 mm")))
sketch15.addConstraint(Sketcher.Constraint("DistanceX", 0, 3, 2, 3, Q("31 mm")))
sketch15.addConstraint(Sketcher.Constraint("DistanceY", 2, 3, 4, 3, Q("31 mm")))
pocket8 = doc.addObject("PartDesign::Pocket", "Pocket007")
body.addObject(pocket8)
pocket8.Profile = sketch15
pocket8.Length = 3
pocket8.Reversed = True

doc.recompute()
